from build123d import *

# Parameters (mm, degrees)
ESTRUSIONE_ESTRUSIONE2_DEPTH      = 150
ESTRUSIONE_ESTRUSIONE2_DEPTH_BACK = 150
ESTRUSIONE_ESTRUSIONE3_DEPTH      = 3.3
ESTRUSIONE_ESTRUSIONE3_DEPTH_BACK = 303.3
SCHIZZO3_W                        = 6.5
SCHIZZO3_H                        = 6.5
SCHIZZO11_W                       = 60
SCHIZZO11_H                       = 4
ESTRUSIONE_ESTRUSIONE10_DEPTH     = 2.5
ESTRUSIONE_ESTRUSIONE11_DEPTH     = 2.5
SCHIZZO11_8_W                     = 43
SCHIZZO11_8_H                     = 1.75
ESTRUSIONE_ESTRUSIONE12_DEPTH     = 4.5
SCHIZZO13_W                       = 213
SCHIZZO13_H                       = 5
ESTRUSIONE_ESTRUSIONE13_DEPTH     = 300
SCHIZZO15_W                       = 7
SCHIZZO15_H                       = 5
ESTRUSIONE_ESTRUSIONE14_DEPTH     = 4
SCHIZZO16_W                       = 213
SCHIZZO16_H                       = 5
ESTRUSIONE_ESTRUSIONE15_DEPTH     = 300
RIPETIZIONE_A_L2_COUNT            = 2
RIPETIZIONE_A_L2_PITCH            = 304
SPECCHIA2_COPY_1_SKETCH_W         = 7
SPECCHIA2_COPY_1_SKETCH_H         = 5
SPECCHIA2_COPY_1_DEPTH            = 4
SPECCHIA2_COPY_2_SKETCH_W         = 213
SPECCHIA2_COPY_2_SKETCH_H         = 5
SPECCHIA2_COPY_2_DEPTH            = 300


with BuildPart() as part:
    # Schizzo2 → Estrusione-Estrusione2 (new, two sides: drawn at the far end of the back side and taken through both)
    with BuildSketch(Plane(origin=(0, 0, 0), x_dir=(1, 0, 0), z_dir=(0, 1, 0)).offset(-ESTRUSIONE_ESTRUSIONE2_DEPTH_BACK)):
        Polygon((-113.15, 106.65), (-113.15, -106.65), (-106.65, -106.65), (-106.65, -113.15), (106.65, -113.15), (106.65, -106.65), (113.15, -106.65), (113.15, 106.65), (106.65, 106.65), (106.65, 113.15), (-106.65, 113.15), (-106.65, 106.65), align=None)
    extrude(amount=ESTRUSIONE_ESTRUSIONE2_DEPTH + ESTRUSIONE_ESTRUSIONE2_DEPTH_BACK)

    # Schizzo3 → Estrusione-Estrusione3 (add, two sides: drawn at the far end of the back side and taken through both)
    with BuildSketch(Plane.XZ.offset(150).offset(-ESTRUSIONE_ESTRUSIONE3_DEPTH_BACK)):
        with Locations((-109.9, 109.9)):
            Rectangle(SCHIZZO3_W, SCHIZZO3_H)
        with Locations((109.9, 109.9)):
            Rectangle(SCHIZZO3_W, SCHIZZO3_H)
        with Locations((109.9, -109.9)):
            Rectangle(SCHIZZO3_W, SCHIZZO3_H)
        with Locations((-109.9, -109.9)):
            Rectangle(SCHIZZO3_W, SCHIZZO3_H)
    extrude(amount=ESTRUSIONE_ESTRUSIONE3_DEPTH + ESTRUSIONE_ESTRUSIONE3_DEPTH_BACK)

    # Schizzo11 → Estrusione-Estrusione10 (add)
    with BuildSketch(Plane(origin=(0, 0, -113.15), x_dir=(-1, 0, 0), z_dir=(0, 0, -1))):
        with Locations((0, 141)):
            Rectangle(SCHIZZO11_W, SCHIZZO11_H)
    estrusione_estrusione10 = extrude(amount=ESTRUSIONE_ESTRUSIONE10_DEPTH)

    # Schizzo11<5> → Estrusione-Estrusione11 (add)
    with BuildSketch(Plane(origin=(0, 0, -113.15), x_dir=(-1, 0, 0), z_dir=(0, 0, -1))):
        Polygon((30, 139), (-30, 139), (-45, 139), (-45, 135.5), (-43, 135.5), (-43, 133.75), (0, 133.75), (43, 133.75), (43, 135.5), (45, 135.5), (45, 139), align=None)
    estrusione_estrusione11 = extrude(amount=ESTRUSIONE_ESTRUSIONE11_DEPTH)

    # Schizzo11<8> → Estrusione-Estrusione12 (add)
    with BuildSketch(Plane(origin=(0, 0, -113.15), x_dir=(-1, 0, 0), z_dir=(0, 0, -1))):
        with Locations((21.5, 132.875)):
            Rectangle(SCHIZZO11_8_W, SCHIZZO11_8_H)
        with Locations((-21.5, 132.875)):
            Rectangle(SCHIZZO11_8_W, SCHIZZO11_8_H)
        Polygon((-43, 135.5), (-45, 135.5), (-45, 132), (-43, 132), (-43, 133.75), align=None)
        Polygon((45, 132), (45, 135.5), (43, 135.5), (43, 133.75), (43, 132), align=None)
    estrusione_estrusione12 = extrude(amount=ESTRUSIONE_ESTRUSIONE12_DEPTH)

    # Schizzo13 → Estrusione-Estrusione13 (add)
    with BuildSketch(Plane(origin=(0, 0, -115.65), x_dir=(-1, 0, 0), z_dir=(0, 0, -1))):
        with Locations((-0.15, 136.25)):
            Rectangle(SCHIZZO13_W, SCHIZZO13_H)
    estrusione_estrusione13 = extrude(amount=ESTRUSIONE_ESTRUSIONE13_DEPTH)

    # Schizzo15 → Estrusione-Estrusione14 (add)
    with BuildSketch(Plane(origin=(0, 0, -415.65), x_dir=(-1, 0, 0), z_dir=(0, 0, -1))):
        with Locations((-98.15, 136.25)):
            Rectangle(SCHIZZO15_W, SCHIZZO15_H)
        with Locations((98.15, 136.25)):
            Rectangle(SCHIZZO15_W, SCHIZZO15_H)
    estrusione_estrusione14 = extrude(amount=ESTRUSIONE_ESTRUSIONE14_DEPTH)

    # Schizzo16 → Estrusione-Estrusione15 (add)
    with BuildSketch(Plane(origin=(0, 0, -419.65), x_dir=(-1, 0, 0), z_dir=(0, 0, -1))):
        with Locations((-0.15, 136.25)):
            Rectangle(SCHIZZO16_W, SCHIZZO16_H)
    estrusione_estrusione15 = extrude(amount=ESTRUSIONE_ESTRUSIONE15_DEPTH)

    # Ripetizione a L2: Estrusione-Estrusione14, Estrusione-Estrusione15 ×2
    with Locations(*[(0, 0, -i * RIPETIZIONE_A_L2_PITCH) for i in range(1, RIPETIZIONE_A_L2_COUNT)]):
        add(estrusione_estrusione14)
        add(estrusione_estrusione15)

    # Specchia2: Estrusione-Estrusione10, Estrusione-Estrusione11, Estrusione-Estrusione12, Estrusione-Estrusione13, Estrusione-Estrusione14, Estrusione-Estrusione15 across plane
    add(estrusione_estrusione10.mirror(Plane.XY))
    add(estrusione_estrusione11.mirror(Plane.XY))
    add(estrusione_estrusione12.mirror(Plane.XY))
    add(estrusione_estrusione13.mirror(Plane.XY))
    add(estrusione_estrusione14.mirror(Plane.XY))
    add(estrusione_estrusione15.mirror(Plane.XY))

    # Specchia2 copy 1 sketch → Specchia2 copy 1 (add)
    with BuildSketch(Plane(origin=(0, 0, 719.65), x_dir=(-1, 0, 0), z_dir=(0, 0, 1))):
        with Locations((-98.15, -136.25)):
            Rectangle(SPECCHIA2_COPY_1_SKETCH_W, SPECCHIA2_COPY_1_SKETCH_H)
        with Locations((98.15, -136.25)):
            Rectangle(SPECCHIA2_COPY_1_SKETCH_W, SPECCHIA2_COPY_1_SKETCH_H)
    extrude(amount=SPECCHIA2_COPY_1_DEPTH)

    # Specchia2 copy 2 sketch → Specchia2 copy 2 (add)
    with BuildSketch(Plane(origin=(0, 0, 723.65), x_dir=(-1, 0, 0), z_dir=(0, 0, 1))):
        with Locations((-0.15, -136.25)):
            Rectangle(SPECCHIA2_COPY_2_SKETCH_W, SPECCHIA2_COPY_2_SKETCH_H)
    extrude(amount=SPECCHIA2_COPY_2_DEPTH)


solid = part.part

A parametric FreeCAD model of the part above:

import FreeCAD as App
import Part
import Sketcher
Q = App.Units.Quantity


def add_polygon(sketch, points):
    """Adds a closed chain of lines whose ends are joined by coincident constraints."""
    first, n = sketch.GeometryCount, len(points)
    for a, b in zip(points, points[1:] + points[:1]):
        sketch.addGeometry(Part.LineSegment(App.Vector(*a, 0), App.Vector(*b, 0)), False)
    for i in range(n):
        sketch.addConstraint(Sketcher.Constraint("Coincident", first + i, 2, first + (i + 1) % n, 1))

doc = App.newDocument("Part")
body = doc.addObject("PartDesign::Body", "Body")

sketch1 = body.newObject("Sketcher::SketchObject", "Sketch")
sketch1.AttachmentSupport = (doc.getObject("XZ_Plane"), [""])
sketch1.MapMode = "FlatFace"
add_polygon(sketch1, [(-113, -107), (-113, 107), (-107, 107), (-107, 113), (107, 113), (107, 107), (113, 107), (113, -107), (107, -107), (107, -113), (-107, -113), (-107, -107)])
sketch1.addConstraint([
    Sketcher.Constraint("Vertical", 0),
    Sketcher.Constraint("Horizontal", 1),
    Sketcher.Constraint("Vertical", 2),
    Sketcher.Constraint("Horizontal", 3),
    Sketcher.Constraint("Vertical", 4),
    Sketcher.Constraint("Horizontal", 5),
    Sketcher.Constraint("Vertical", 6),
    Sketcher.Constraint("Horizontal", 7),
    Sketcher.Constraint("Vertical", 8),
    Sketcher.Constraint("Horizontal", 9),
    Sketcher.Constraint("Vertical", 10),
    Sketcher.Constraint("Horizontal", 11),
    Sketcher.Constraint("Symmetric", 0, 2, 6, 2, -1, 1),
    Sketcher.Constraint("Symmetric", 2, 2, 8, 2, -1, 1),
    Sketcher.Constraint("Symmetric", 4, 2, 10, 2, -1, 1),
    Sketcher.Constraint("Symmetric", 1, 2, 4, 2, -2),
    Sketcher.Constraint("Equal", 9, 0),
    Sketcher.Constraint("Equal", 11, 2),
    Sketcher.Constraint("DistanceX", 1, 1, 1, 2, Q("6.5 mm")),
    Sketcher.Constraint("DistanceX", 3, 1, 3, 2, Q("213.3 mm")),
])
pad1 = body.newObject("PartDesign::Pad", "Pad")
pad1.Profile = sketch1
pad1.Type = "TwoLengths"
pad1.Length = 150
pad1.Length2 = 150
pad1.Reversed = True

sketch2 = body.newObject("Sketcher::SketchObject", "Sketch001")
sketch2.AttachmentSupport = (doc.getObject("XZ_Plane"), [""])
sketch2.MapMode = "FlatFace"
sketch2.AttachmentOffset = App.Placement(App.Vector(0, 0, 150), App.Rotation())
add_polygon(sketch2, [(-113, 113), (-113, 107), (-107, 107), (-107, 113)])
add_polygon(sketch2, [(107, 113), (107, 107), (113, 107), (113, 113)])
add_polygon(sketch2, [(107, -107), (107, -113), (113, -113), (113, -107)])
add_polygon(sketch2, [(-113, -107), (-113, -113), (-107, -113), (-107, -107)])
sketch2.addConstraint([
    Sketcher.Constraint("Vertical", 0),
    Sketcher.Constraint("Horizontal", 1),
    Sketcher.Constraint("Vertical", 2),
    Sketcher.Constraint("Horizontal", 3),
    Sketcher.Constraint("Vertical", 4),
    Sketcher.Constraint("Horizontal", 5),
    Sketcher.Constraint("Vertical", 6),
    Sketcher.Constraint("Horizontal", 7),
    Sketcher.Constraint("Vertical", 8),
    Sketcher.Constraint("Horizontal", 9),
    Sketcher.Constraint("Vertical", 10),
    Sketcher.Constraint("Horizontal", 11),
    Sketcher.Constraint("Vertical", 12),
    Sketcher.Constraint("Horizontal", 13),
    Sketcher.Constraint("Vertical", 14),
    Sketcher.Constraint("Horizontal", 15),
    Sketcher.Constraint("Symmetric", 2, 2, 8, 2, -1, 1),
    Sketcher.Constraint("Symmetric", 0, 2, 10, 2, -1, 1),
    Sketcher.Constraint("Symmetric", 6, 2, 12, 2, -1, 1),
    Sketcher.Constraint("Symmetric", 4, 2, 14, 2, -1, 1),
    Sketcher.Constraint("Symmetric", 1, 2, 4, 2, -2),
    Sketcher.Constraint("Symmetric", 3, 2, 6, 2, -2),
    Sketcher.Constraint("Equal", 15, 0),
    Sketcher.Constraint("DistanceX", 1, 1, 1, 2, Q("6.5 mm")),
    Sketcher.Constraint("DistanceX", 1, 2, 4, 2, Q("213.3 mm")),
    Sketcher.Constraint("DistanceY", 8, 2, 4, 2, Q("219.8 mm")),
])
pad2 = body.newObject("PartDesign::Pad", "Pad001")
pad2.Profile = sketch2
pad2.Type = "TwoLengths"
pad2.Length = 3.3
pad2.Length2 = 303.3

sketch3 = body.newObject("Sketcher::SketchObject", "Sketch002")
sketch3.AttachmentSupport = (doc.getObject("XY_Plane"), [""])
sketch3.MapMode = "FlatFace"
sketch3.AttachmentOffset = App.Placement(App.Vector(0, 0, -113.15), App.Rotation())
add_polygon(sketch3, [(30, 143), (30, 139), (-30, 139), (-30, 143)])
sketch3.addConstraint([
    Sketcher.Constraint("Vertical", 0),
    Sketcher.Constraint("Horizontal", 1),
    Sketcher.Constraint("Vertical", 2),
    Sketcher.Constraint("Horizontal", 3),
    Sketcher.Constraint("DistanceX", 1, 2, 1, 1, Q("60 mm")),
    Sketcher.Constraint("DistanceY", 0, 2, 0, 1, Q("4 mm")),
    Sketcher.Constraint("DistanceX", -1, 1, 0, 2, Q("30 mm")),
    Sketcher.Constraint("DistanceY", -1, 1, 0, 2, Q("139 mm")),
])
pad3 = body.newObject("PartDesign::Pad", "Pad002")
pad3.Profile = sketch3
pad3.Length = 2.5
pad3.Reversed = True

sketch4 = body.newObject("Sketcher::SketchObject", "Sketch003")
sketch4.AttachmentSupport = (doc.getObject("XY_Plane"), [""])
sketch4.MapMode = "FlatFace"
sketch4.AttachmentOffset = App.Placement(App.Vector(0, 0, -113.15), App.Rotation())
add_polygon(sketch4, [(45, 139), (45, 135.5), (43, 135.5), (43, 133.8), (-43, 133.8), (-43, 135.5), (-45, 135.5), (-45, 139)])
sketch4.addConstraint([
    Sketcher.Constraint("Vertical", 0),
    Sketcher.Constraint("Horizontal", 1),
    Sketcher.Constraint("Vertical", 2),
    Sketcher.Constraint("Horizontal", 3),
    Sketcher.Constraint("Vertical", 4),
    Sketcher.Constraint("Horizontal", 5),
    Sketcher.Constraint("Vertical", 6),
    Sketcher.Constraint("Horizontal", 7),
    Sketcher.Constraint("Symmetric", 1, 2, 4, 2, -2),
    Sketcher.Constraint("Equal", 1, 5),
    Sketcher.Constraint("DistanceX", 1, 2, 1, 1, Q("2 mm")),
    Sketcher.Constraint("DistanceX", 3, 2, 3, 1, Q("86 mm")),
    Sketcher.Constraint("DistanceY", 0, 2, 0, 1, Q("3.5 mm")),
    Sketcher.Constraint("DistanceY", -1, 1, 6, 2, Q("139 mm")),
    Sketcher.Constraint("DistanceY", 2, 2, 2, 1, Q("1.75 mm")),
])
pad4 = body.newObject("PartDesign::Pad", "Pad003")
pad4.Profile = sketch4
pad4.Length = 2.5
pad4.Reversed = True

sketch5 = body.newObject("Sketcher::SketchObject", "Sketch004")
sketch5.AttachmentSupport = (doc.getObject("XY_Plane"), [""])
sketch5.MapMode = "FlatFace"
sketch5.AttachmentOffset = App.Placement(App.Vector(0, 0, -113.15), App.Rotation())
add_polygon(sketch5, [(-43, 133.8), (43, 133.8), (43, 135.5), (45, 135.5), (45, 132), (-45, 132), (-45, 135.5), (-43, 135.5)])
sketch5.addConstraint([
    Sketcher.Constraint("Horizontal", 0),
    Sketcher.Constraint("Vertical", 1),
    Sketcher.Constraint("Horizontal", 2),
    Sketcher.Constraint("Vertical", 3),
    Sketcher.Constraint("Horizontal", 4),
    Sketcher.Constraint("Vertical", 5),
    Sketcher.Constraint("Horizontal", 6),
    Sketcher.Constraint("Vertical", 7),
    Sketcher.Constraint("Symmetric", 2, 2, 5, 2, -2),
    Sketcher.Constraint("Equal", 2, 6),
    Sketcher.Constraint("DistanceX", 0, 1, 0, 2, Q("86 mm")),
    Sketcher.Constraint("DistanceX", 2, 1, 2, 2, Q("2 mm")),
    Sketcher.Constraint("DistanceY", 3, 2, 3, 1, Q("3.5 mm")),
    Sketcher.Constraint("DistanceY", -1, 1, 3, 2, Q("132 mm")),
    Sketcher.Constraint("DistanceY", 1, 1, 1, 2, Q("1.75 mm")),
])
pad5 = body.newObject("PartDesign::Pad", "Pad004")
pad5.Profile = sketch5
pad5.Length = 4.5
pad5.Reversed = True

sketch6 = body.newObject("Sketcher::SketchObject", "Sketch005")
sketch6.AttachmentSupport = (doc.getObject("XY_Plane"), [""])
sketch6.MapMode = "FlatFace"
sketch6.AttachmentOffset = App.Placement(App.Vector(0, 0, -115.65), App.Rotation())
add_polygon(sketch6, [(107, 139), (107, 134), (-106, 134), (-106, 139)])
sketch6.addConstraint([
    Sketcher.Constraint("Vertical", 0),
    Sketcher.Constraint("Horizontal", 1),
    Sketcher.Constraint("Vertical", 2),
    Sketcher.Constraint("Horizontal", 3),
    Sketcher.Constraint("DistanceX", 1, 2, 1, 1, Q("213 mm")),
    Sketcher.Constraint("DistanceY", 0, 2, 0, 1, Q("5 mm")),
    Sketcher.Constraint("DistanceX", -1, 1, 0, 2, Q("106.65 mm")),
    Sketcher.Constraint("DistanceY", -1, 1, 0, 2, Q("133.75 mm")),
])
pad6 = body.newObject("PartDesign::Pad", "Pad005")
pad6.Profile = sketch6
pad6.Length = 300
pad6.Reversed = True

sketch7 = body.newObject("Sketcher::SketchObject", "Sketch006")
sketch7.AttachmentSupport = (doc.getObject("XY_Plane"), [""])
sketch7.MapMode = "FlatFace"
sketch7.AttachmentOffset = App.Placement(App.Vector(0, 0, -415.65), App.Rotation())
add_polygon(sketch7, [(102, 139), (102, 134), (95, 134), (95, 139)])
add_polygon(sketch7, [(-95, 139), (-95, 134), (-102, 134), (-102, 139)])
sketch7.addConstraint([
    Sketcher.Constraint("Vertical", 0),
    Sketcher.Constraint("Horizontal", 1),
    Sketcher.Constraint("Vertical", 2),
    Sketcher.Constraint("Horizontal", 3),
    Sketcher.Constraint("Vertical", 4),
    Sketcher.Constraint("Horizontal", 5),
    Sketcher.Constraint("Vertical", 6),
    Sketcher.Constraint("Horizontal", 7),
    Sketcher.Constraint("Symmetric", 1, 2, 4, 2, -2),
    Sketcher.Constraint("Symmetric", 3, 2, 6, 2, -2),
    Sketcher.Constraint("DistanceX", 1, 2, 1, 1, Q("7 mm")),
    Sketcher.Constraint("DistanceY", 0, 2, 0, 1, Q("5 mm")),
    Sketcher.Constraint("DistanceX", 4, 2, 1, 2, Q("189.3 mm")),
    Sketcher.Constraint("DistanceY", -1, 1, 0, 2, Q("133.75 mm")),
])
pad7 = body.newObject("PartDesign::Pad", "Pad006")
pad7.Profile = sketch7
pad7.Length = 4
pad7.Reversed = True

sketch8 = body.newObject("Sketcher::SketchObject", "Sketch007")
sketch8.AttachmentSupport = (doc.getObject("XY_Plane"), [""])
sketch8.MapMode = "FlatFace"
sketch8.AttachmentOffset = App.Placement(App.Vector(0, 0, -419.65), App.Rotation())
add_polygon(sketch8, [(107, 139), (107, 134), (-106, 134), (-106, 139)])
sketch8.addConstraint([
    Sketcher.Constraint("Vertical", 0),
    Sketcher.Constraint("Horizontal", 1),
    Sketcher.Constraint("Vertical", 2),
    Sketcher.Constraint("Horizontal", 3),
    Sketcher.Constraint("DistanceX", 1, 2, 1, 1, Q("213 mm")),
    Sketcher.Constraint("DistanceY", 0, 2, 0, 1, Q("5 mm")),
    Sketcher.Constraint("DistanceX", -1, 1, 0, 2, Q("106.65 mm")),
    Sketcher.Constraint("DistanceY", -1, 1, 0, 2, Q("133.75 mm")),
])
pad8 = body.newObject("PartDesign::Pad", "Pad007")
pad8.Profile = sketch8
pad8.Length = 300
pad8.Reversed = True
doc.recompute()

linearpattern = body.newObject("PartDesign::LinearPattern", "LinearPattern")
linearpattern.Originals = [pad7, pad8]
linearpattern.Direction = (doc.getObject("Z_Axis"), [""])
linearpattern.Mode = "offset"
linearpattern.Offset = 304
linearpattern.Occurrences = 2
linearpattern.Reversed = True
body.Tip = linearpattern
doc.recompute()

mirrored = body.newObject("PartDesign::Mirrored", "Mirrored")
mirrored.Originals = [pad3, pad4, pad5, pad6, pad7, pad8]
mirrored.MirrorPlane = (doc.getObject("XY_Plane"), [""])
body.Tip = mirrored

sketch9 = body.newObject("Sketcher::SketchObject", "Sketch008")
sketch9.AttachmentSupport = (doc.getObject("XY_Plane"), [""])
sketch9.MapMode = "FlatFace"
sketch9.AttachmentOffset = App.Placement(App.Vector(0, 0, 719.65), App.Rotation())
add_polygon(sketch9, [(102, 134), (102, 139), (95, 139), (95, 134)])
add_polygon(sketch9, [(-95, 134), (-95, 139), (-102, 139), (-102, 134)])
sketch9.addConstraint([
    Sketcher.Constraint("Vertical", 0),
    Sketcher.Constraint("Horizontal", 1),
    Sketcher.Constraint("Vertical", 2),
    Sketcher.Constraint("Horizontal", 3),
    Sketcher.Constraint("Vertical", 4),
    Sketcher.Constraint("Horizontal", 5),
    Sketcher.Constraint("Vertical", 6),
    Sketcher.Constraint("Horizontal", 7),
    Sketcher.Constraint("Symmetric", 1, 2, 4, 2, -2),
    Sketcher.Constraint("Symmetric", 3, 2, 6, 2, -2),
    Sketcher.Constraint("DistanceX", 1, 2, 1, 1, Q("7 mm")),
    Sketcher.Constraint("DistanceY", 0, 1, 0, 2, Q("5 mm")),
    Sketcher.Constraint("DistanceX", 4, 2, 1, 2, Q("189.3 mm")),
    Sketcher.Constraint("DistanceY", -1, 1, 0, 2, Q("138.75 mm")),
])
pad9 = body.newObject("PartDesign::Pad", "Pad008")
pad9.Profile = sketch9
pad9.Length = 4

sketch10 = body.newObject("Sketcher::SketchObject", "Sketch009")
sketch10.AttachmentSupport = (doc.getObject("XY_Plane"), [""])
sketch10.MapMode = "FlatFace"
sketch10.AttachmentOffset = App.Placement(App.Vector(0, 0, 723.65), App.Rotation())
add_polygon(sketch10, [(107, 134), (107, 139), (-106, 139), (-106, 134)])
sketch10.addConstraint([
    Sketcher.Constraint("Vertical", 0),
    Sketcher.Constraint("Horizontal", 1),
    Sketcher.Constraint("Vertical", 2),
    Sketcher.Constraint("Horizontal", 3),
    Sketcher.Constraint("DistanceX", 1, 2, 1, 1, Q("213 mm")),
    Sketcher.Constraint("DistanceY", 0, 1, 0, 2, Q("5 mm")),
    Sketcher.Constraint("DistanceX", -1, 1, 0, 2, Q("106.65 mm")),
    Sketcher.Constraint("DistanceY", -1, 1, 0, 2, Q("138.75 mm")),
])
pad10 = body.newObject("PartDesign::Pad", "Pad009")
pad10.Profile = sketch10
pad10.Length = 300

doc.recompute()
